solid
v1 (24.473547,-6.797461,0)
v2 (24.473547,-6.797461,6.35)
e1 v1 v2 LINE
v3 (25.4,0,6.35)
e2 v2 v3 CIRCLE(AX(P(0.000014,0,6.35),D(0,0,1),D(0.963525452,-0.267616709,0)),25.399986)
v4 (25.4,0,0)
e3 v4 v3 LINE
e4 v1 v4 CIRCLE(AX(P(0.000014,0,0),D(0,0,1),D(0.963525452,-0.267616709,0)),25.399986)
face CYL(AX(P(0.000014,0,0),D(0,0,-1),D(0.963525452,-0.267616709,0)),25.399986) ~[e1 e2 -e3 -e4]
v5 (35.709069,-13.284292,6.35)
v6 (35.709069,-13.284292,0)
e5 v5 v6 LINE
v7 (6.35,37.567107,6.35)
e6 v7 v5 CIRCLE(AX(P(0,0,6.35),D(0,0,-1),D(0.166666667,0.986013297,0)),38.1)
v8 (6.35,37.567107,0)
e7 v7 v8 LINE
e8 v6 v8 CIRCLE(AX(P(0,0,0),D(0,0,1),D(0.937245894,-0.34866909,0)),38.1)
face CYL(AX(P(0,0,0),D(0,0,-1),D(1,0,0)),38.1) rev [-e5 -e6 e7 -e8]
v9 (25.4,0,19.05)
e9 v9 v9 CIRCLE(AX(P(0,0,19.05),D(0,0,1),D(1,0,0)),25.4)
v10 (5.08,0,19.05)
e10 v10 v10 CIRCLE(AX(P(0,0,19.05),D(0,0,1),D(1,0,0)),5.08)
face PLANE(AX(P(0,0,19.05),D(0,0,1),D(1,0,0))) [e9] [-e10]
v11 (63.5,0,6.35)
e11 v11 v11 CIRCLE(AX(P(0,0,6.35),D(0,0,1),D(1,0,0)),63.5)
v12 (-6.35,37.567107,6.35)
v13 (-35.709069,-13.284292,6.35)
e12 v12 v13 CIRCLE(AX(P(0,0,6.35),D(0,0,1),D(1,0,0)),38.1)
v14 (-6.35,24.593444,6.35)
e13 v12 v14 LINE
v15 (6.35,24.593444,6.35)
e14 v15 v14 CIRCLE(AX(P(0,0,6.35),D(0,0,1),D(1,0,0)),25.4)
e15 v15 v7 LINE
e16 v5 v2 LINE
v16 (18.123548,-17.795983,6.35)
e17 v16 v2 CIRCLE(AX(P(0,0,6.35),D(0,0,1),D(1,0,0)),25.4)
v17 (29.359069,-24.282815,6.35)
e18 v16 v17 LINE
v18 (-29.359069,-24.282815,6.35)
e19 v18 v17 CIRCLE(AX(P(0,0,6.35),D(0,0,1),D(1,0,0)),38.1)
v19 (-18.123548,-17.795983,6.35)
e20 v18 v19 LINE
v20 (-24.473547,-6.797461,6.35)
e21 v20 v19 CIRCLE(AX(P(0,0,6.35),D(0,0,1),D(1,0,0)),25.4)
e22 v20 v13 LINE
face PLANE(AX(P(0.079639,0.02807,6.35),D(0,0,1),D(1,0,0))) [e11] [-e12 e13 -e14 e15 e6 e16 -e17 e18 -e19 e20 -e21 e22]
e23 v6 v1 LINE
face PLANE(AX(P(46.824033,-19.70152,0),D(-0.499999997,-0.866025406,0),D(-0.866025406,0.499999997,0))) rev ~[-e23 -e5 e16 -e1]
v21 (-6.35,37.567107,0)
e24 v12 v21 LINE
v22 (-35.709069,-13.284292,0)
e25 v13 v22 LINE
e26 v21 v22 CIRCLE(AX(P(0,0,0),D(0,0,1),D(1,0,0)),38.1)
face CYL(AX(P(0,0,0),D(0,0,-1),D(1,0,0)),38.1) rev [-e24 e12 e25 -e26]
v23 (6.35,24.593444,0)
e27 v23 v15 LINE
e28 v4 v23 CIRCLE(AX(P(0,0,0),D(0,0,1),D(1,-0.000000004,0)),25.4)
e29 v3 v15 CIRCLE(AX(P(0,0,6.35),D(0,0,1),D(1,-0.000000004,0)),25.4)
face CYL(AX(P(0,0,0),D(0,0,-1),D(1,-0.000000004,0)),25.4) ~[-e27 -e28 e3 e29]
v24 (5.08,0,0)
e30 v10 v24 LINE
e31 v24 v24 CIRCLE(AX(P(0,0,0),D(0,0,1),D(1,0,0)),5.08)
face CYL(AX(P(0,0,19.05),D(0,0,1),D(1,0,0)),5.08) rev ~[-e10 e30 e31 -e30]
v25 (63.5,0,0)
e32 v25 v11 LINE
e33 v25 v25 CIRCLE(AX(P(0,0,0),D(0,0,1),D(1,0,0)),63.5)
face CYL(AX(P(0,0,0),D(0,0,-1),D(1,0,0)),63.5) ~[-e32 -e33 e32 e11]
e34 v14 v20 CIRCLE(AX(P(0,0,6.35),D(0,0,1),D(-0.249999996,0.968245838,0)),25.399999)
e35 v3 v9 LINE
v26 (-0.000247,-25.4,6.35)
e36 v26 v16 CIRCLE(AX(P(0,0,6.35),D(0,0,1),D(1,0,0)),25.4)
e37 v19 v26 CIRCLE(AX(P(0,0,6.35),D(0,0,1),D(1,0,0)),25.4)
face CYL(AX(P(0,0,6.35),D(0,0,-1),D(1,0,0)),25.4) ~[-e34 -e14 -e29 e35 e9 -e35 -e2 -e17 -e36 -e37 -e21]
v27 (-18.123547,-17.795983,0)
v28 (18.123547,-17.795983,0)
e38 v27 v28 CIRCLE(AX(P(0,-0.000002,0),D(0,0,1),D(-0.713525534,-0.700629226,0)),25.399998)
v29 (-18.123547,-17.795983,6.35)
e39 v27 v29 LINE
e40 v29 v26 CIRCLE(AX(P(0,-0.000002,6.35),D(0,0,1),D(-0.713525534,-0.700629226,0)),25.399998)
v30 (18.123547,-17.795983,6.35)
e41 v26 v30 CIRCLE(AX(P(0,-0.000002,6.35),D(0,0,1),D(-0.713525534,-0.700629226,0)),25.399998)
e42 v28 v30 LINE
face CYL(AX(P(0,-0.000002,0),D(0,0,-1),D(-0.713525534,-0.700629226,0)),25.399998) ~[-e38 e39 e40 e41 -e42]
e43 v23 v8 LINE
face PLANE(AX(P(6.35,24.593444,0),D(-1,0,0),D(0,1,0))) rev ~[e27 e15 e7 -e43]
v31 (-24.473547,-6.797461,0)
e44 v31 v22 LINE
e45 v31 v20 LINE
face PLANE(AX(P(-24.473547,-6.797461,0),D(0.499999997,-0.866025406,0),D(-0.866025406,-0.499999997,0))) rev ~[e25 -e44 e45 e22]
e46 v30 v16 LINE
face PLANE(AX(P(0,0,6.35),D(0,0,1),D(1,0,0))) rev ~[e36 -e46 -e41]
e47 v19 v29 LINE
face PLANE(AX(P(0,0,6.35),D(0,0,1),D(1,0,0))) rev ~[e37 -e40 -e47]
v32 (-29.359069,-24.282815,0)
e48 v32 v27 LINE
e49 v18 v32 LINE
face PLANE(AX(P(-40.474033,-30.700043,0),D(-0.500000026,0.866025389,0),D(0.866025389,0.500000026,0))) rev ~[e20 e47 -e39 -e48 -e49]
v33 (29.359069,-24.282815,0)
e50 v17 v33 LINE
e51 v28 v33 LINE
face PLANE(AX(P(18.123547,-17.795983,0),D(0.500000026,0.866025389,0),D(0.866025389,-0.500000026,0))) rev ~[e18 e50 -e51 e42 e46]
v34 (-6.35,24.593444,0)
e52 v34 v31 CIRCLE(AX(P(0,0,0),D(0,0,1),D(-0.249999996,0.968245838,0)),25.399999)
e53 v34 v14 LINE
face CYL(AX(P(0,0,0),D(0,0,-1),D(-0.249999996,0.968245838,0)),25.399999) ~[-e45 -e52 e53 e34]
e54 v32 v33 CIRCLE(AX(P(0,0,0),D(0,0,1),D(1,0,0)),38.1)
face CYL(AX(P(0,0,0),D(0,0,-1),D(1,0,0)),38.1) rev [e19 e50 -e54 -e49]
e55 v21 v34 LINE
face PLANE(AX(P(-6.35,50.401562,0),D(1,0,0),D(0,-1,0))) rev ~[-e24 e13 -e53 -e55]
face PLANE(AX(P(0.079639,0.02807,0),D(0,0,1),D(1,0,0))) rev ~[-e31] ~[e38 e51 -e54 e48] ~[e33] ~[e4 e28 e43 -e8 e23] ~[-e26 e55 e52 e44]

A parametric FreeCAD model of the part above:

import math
import FreeCAD as App
import Part
import Sketcher
from FreeCAD import Vector
Q = App.Units.Quantity

doc = App.newDocument("Part")
body = doc.addObject("PartDesign::Body", "Body")

# Sketch on XY plane
sketch1 = body.newObject("Sketcher::SketchObject", "Sketch")
sketch1.AttachmentSupport = (doc.getObject("XY_Plane"), [""])
sketch1.MapMode = "FlatFace"
sketch1.addGeometry([
    Part.Circle(Vector(0, 0, 0), Vector(0, 0, 1), 63.5),
    Part.Circle(Vector(0, 0, 0), Vector(0, 0, 1), 38.1),
], False)
sketch1.addConstraint([
    Sketcher.Constraint("Coincident", 0, 3, -1, 1),
    Sketcher.Constraint("Coincident", 1, 3, -1, 1),
    Sketcher.Constraint("Diameter", 0, Q("5 in")),
    Sketcher.Constraint("Diameter", 1, Q("3 in")),
])
pad1 = body.newObject("PartDesign::Pad", "Pad")
pad1.Profile = sketch1
pad1.Length = Q("0.25 in")

# Sketch on XY plane
sketch2 = body.newObject("Sketcher::SketchObject", "Sketch001")
sketch2.AttachmentSupport = (doc.getObject("XY_Plane"), [""])
sketch2.MapMode = "FlatFace"
sketch2.addGeometry([
    Part.ArcOfCircle(Part.Circle(Vector(0, 0, 0), Vector(0, 0, 1), 25.4), math.radians(0), math.radians(75.522489)),  # 0
    Part.LineSegment(Vector(6.35, 24.593444, 0), Vector(6.35, 50.401562, 0)),  # 1
    Part.ArcOfCircle(Part.Circle(Vector(0, 0.00006, 0), Vector(0, 0, 1), 50.79994), math.radians(82.819236), math.radians(97.180764)),  # 2
    Part.LineSegment(Vector(-6.35, 50.401562, 0), Vector(-6.35, 24.593444, 0)),  # 3
    Part.ArcOfCircle(Part.Circle(Vector(0, 0, 0), Vector(0, 0, 1), 25.399999), math.radians(104.477512), math.radians(195.522489)),  # 4
    Part.LineSegment(Vector(-24.473547, -6.797461, 0), Vector(-46.824033, -19.70152, 0)),  # 5
    Part.ArcOfCircle(Part.Circle(Vector(-0.000076, -0.000045, 0), Vector(0, 0, 1), 50.799912), math.radians(-157.180769), math.radians(-142.819232)),  # 6
    Part.LineSegment(Vector(-40.474033, -30.700043, 0), Vector(-18.123547, -17.795983, 0)),  # 7
    Part.ArcOfCircle(Part.Circle(Vector(0, -0.000002, 0), Vector(0, 0, 1), 25.399998), math.radians(-135.522491), math.radians(-44.477509)),  # 8
    Part.LineSegment(Vector(18.123547, -17.795983, 0), Vector(40.474033, -30.700043, 0)),  # 9
    Part.ArcOfCircle(Part.Circle(Vector(0.000076, -0.000045, 0), Vector(0, 0, 1), 50.799912), math.radians(-37.180768), math.radians(-22.819231)),  # 10
    Part.LineSegment(Vector(46.824033, -19.70152, 0), Vector(24.473547, -6.797461, 0)),  # 11
    Part.ArcOfCircle(Part.Circle(Vector(0.000014, 0, 0), Vector(0, 0, 1), 25.399986), math.radians(-15.522496), math.radians(0.000001)),  # 12
], False)
sketch2.addConstraint([
    Sketcher.Constraint("Coincident", 0, 2, 1, 1),
    Sketcher.Constraint("Coincident", 1, 2, 2, 1),
    Sketcher.Constraint("Coincident", 2, 2, 3, 1),
    Sketcher.Constraint("Coincident", 3, 2, 4, 1),
    Sketcher.Constraint("Coincident", 4, 2, 5, 1),
    Sketcher.Constraint("Coincident", 5, 2, 6, 1),
    Sketcher.Constraint("Coincident", 6, 2, 7, 1),
    Sketcher.Constraint("Coincident", 7, 2, 8, 1),
    Sketcher.Constraint("Coincident", 8, 2, 9, 1),
    Sketcher.Constraint("Coincident", 9, 2, 10, 1),
    Sketcher.Constraint("Coincident", 10, 2, 11, 1),
    Sketcher.Constraint("Coincident", 11, 2, 12, 1),
    Sketcher.Constraint("Tangent", 12, 2, 0, 1),
    Sketcher.Constraint("Vertical", 1),
    Sketcher.Constraint("Vertical", 3),
    Sketcher.Constraint("Coincident", 0, 3, -1, 1),
    Sketcher.Constraint("Coincident", 4, 3, -1, 1),
    Sketcher.Constraint("Coincident", 8, 3, -1, 1),
    Sketcher.Constraint("Equal", 0, 4),
    Sketcher.Constraint("Equal", 4, 8),
    Sketcher.Constraint("Equal", 6, 10),
    Sketcher.Constraint("Symmetric", 6, 3, 10, 3, -2),
    Sketcher.Constraint("Symmetric", 1, 2, 2, 2, -2),
    Sketcher.Constraint("Symmetric", 4, 2, 11, 2, -2),
    Sketcher.Constraint("PointOnObject", 12, 2, -1),
    Sketcher.Constraint("Parallel", 5, 7),
    Sketcher.Constraint("Parallel", 9, 11),
    Sketcher.Constraint("Horizontal", 7, 2, 8, 2),
    Sketcher.Constraint("Horizontal", 6, 2, 9, 2),
    Sketcher.Constraint("Equal", 5, 7),
    Sketcher.Constraint("Radius", 0, Q("1 in")),
    Sketcher.Constraint("Angle", 5, Q("-150 deg")),
    Sketcher.Constraint("DistanceX", 2, 2, 1, 2, Q("0.5 in")),
    Sketcher.Constraint("DistanceX", 5, 2, 6, 2, Q("0.25 in")),
    Sketcher.Constraint("Radius", 2, Q("50.79994 mm")),
    Sketcher.Constraint("Radius", 6, Q("50.799912 mm")),
    Sketcher.Constraint("Distance", 5, Q("25.808118 mm")),
    Sketcher.Constraint("DistanceY", 1, 1, 1, 2, Q("25.808118 mm")),
    Sketcher.Constraint("DistanceY", 4, 2, -1, 1, Q("6.797461 mm")),
])
pad2 = body.newObject("PartDesign::Pad", "Pad001")
pad2.Profile = sketch2
pad2.Length = Q("0.25 in")

# Sketch on XY plane
sketch3 = body.newObject("Sketcher::SketchObject", "Sketch002")
sketch3.AttachmentSupport = (doc.getObject("XY_Plane"), [""])
sketch3.MapMode = "FlatFace"
sketch3.AttachmentOffset = App.Placement(Vector(0, 0, 0.25 * 25.4), App.Rotation())
sketch3.addGeometry(Part.Circle(Vector(0, 0, 0), Vector(0, 0, 1), 25.4), False)
sketch3.addConstraint([
    Sketcher.Constraint("Coincident", 0, 3, -1, 1),
    Sketcher.Constraint("Diameter", 0, Q("2 in")),
])
pad3 = body.newObject("PartDesign::Pad", "Pad002")
pad3.Profile = sketch3
pad3.Length = Q("0.5 in")

# Sketch on XY plane
sketch4 = body.newObject("Sketcher::SketchObject", "Sketch003")
sketch4.AttachmentSupport = (doc.getObject("XY_Plane"), [""])
sketch4.MapMode = "FlatFace"
sketch4.AttachmentOffset = App.Placement(Vector(0, 0, 0.75 * 25.4), App.Rotation())
sketch4.addGeometry(Part.Circle(Vector(0, 0, 0), Vector(0, 0, 1), 5.08), False)
sketch4.addConstraint([
    Sketcher.Constraint("Coincident", 0, 3, -1, 1),
    Sketcher.Constraint("Diameter", 0, Q("0.4 in")),
])
pocket1 = body.newObject("PartDesign::Pocket", "Pocket")
pocket1.Profile = sketch4
pocket1.Type = "ThroughAll"

doc.recompute()
